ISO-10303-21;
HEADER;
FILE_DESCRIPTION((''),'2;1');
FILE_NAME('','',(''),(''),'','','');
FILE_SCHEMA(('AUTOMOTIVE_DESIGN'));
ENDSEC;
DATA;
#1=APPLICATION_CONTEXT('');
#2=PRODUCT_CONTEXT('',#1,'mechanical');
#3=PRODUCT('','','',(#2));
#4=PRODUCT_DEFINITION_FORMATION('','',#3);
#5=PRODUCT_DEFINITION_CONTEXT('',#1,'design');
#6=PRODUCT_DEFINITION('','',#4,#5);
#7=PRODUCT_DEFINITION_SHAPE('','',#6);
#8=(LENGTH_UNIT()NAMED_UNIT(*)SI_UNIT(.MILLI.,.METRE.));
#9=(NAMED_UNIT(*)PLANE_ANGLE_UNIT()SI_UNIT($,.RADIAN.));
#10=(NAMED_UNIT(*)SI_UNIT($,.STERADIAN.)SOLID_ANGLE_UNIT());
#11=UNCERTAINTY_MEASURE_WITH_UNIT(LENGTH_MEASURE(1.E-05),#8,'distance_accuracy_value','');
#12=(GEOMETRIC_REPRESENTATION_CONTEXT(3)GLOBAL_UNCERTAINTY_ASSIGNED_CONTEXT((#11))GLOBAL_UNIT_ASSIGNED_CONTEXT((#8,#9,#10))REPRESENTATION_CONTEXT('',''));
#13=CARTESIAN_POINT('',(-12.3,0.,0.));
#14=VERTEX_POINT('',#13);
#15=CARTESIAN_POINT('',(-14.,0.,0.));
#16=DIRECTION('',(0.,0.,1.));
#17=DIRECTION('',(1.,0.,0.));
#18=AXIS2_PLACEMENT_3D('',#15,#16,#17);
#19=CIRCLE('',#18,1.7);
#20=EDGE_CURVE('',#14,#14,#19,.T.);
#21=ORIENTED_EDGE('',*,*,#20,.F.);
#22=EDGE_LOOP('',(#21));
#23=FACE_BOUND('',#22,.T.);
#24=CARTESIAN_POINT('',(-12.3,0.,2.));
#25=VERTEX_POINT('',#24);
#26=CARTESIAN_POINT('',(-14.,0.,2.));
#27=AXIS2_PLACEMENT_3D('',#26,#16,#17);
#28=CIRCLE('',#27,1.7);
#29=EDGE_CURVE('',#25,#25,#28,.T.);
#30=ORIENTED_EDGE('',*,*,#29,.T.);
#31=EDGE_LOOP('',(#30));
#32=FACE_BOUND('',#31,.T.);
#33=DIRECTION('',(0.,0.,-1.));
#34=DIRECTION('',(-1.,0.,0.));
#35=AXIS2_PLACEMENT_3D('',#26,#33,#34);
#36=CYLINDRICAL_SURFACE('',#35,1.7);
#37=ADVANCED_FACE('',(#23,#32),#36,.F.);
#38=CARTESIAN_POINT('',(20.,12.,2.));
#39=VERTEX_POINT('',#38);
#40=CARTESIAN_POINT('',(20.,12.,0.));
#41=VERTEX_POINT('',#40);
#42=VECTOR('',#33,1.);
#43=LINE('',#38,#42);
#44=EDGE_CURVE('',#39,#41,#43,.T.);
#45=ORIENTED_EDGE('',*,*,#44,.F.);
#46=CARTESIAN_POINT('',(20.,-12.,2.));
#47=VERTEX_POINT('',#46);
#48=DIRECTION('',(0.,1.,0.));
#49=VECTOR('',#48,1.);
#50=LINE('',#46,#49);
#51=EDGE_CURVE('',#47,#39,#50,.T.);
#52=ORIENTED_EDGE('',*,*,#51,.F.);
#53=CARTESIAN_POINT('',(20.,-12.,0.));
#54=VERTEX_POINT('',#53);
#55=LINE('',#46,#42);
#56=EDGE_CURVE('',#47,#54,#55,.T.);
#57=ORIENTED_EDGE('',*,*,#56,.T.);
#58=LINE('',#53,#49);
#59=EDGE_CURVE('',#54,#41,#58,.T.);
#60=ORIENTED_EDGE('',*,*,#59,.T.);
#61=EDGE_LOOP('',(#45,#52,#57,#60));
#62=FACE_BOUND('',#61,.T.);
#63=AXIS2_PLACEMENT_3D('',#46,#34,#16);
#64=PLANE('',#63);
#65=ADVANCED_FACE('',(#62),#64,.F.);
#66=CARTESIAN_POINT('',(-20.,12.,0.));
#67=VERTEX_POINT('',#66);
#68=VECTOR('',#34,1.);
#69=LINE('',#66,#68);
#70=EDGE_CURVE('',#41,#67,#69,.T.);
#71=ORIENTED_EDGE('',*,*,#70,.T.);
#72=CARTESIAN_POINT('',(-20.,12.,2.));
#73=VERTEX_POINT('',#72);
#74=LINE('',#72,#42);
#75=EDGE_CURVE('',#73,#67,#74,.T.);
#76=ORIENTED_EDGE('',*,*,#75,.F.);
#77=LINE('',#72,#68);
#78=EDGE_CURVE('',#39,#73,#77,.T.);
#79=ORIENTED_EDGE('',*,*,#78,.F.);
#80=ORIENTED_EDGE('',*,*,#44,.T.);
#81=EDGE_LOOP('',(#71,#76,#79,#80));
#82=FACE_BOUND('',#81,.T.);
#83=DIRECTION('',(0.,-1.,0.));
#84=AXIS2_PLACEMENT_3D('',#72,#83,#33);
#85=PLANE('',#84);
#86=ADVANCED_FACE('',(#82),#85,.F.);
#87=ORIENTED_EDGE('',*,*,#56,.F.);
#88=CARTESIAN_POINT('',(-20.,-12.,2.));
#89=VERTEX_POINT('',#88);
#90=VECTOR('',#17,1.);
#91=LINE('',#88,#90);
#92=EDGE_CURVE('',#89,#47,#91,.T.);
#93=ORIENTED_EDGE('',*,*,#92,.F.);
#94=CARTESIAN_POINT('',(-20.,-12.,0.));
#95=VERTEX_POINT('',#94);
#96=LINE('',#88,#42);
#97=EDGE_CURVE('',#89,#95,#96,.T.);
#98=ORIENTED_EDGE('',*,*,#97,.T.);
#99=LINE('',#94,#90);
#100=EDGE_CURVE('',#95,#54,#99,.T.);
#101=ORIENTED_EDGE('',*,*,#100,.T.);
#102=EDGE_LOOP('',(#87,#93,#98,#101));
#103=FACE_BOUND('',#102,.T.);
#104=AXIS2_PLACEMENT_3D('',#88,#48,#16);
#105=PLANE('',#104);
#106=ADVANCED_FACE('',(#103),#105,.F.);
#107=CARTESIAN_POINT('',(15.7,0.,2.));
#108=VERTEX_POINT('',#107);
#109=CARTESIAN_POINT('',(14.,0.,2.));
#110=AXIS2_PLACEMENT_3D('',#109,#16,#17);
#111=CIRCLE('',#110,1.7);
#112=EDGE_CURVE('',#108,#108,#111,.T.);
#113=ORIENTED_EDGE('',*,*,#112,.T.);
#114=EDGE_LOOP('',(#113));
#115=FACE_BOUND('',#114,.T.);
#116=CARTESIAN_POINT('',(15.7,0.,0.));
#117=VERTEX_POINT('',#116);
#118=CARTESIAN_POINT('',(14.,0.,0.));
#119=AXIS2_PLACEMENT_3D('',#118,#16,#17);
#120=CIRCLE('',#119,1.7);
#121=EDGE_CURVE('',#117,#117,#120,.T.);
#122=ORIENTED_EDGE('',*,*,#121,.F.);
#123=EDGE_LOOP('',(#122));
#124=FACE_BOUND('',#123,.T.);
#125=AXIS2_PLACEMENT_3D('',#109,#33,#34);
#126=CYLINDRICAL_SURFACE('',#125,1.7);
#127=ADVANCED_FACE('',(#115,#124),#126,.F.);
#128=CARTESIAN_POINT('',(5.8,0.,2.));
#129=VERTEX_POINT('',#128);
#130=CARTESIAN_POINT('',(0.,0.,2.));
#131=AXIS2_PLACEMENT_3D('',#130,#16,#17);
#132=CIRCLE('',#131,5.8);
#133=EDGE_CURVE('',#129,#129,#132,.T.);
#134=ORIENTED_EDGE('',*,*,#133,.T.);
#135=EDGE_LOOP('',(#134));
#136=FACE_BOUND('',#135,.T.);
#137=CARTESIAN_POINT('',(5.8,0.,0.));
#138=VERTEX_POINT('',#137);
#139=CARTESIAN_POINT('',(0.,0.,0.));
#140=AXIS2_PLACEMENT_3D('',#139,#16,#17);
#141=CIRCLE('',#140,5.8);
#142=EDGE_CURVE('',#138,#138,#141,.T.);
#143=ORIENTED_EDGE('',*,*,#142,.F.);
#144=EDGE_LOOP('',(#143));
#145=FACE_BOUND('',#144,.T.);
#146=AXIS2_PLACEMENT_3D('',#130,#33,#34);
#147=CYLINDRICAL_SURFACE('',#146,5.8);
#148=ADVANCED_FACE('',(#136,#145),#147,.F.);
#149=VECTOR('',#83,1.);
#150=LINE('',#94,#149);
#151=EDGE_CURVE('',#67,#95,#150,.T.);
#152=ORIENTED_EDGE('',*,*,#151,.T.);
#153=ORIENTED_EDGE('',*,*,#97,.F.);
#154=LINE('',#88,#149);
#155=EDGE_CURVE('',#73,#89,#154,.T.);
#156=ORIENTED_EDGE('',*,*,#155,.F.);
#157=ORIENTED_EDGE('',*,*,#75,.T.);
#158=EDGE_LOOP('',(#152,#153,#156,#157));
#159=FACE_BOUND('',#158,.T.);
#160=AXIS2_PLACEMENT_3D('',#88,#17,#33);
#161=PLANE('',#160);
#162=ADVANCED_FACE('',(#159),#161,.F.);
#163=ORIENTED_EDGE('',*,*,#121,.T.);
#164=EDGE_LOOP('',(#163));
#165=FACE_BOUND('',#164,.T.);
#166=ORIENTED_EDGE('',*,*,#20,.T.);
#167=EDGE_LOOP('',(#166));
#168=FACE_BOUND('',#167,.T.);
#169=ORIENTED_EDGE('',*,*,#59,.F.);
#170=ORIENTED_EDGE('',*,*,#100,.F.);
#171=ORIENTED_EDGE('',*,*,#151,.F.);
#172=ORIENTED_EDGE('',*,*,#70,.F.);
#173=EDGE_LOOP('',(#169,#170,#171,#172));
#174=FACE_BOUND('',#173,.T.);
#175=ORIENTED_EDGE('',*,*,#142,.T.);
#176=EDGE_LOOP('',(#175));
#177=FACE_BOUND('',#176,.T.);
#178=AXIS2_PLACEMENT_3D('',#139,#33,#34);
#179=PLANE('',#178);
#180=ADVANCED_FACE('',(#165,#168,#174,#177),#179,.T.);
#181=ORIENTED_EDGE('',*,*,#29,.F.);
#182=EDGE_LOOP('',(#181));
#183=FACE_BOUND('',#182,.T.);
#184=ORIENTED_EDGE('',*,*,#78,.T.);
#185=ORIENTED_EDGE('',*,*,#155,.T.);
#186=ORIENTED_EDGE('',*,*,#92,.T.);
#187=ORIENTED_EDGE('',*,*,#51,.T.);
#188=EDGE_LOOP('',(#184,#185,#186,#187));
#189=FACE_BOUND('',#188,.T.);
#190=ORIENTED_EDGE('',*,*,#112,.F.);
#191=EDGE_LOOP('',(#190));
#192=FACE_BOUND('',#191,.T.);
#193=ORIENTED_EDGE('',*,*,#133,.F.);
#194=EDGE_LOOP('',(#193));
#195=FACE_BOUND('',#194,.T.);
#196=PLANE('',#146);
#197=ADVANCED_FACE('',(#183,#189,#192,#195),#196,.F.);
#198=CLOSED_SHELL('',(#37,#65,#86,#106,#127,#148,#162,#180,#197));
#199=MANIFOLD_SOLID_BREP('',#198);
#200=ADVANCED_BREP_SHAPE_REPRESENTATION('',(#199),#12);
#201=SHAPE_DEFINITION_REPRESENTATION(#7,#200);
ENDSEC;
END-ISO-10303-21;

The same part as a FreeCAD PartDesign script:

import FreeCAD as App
import Part
import Sketcher
from FreeCAD import Vector

doc = App.newDocument("Part")
body = doc.addObject("PartDesign::Body", "Body")

sketch1 = body.newObject("Sketcher::SketchObject", "Sketch")
sketch1.AttachmentSupport = (doc.getObject("XY_Plane"), [""])
sketch1.MapMode = "FlatFace"
sketch1.addGeometry([
    Part.LineSegment(Vector(-20, 12, 0), Vector(-20, -12, 0)),
    Part.LineSegment(Vector(-20, -12, 0), Vector(20, -12, 0)),
    Part.LineSegment(Vector(20, -12, 0), Vector(20, 12, 0)),
    Part.LineSegment(Vector(20, 12, 0), Vector(-20, 12, 0)),
    Part.Circle(Vector(-14, 0, 0), Vector(0, 0, 1), 1.7),
    Part.Circle(Vector(0, 0, 0), Vector(0, 0, 1), 5.8),
    Part.Circle(Vector(14, 0, 0), Vector(0, 0, 1), 1.7),
], False)
sketch1.addConstraint([
    Sketcher.Constraint("Coincident", 0, 2, 1, 1),
    Sketcher.Constraint("Coincident", 1, 2, 2, 1),
    Sketcher.Constraint("Coincident", 2, 2, 3, 1),
    Sketcher.Constraint("Coincident", 3, 2, 0, 1),
    Sketcher.Constraint("Vertical", 0),
    Sketcher.Constraint("Horizontal", 1),
    Sketcher.Constraint("Vertical", 2),
    Sketcher.Constraint("Horizontal", 3),
    Sketcher.Constraint("Coincident", 5, 3, -1, 1),
    Sketcher.Constraint("Equal", 4, 6),
    Sketcher.Constraint("Symmetric", 4, 3, 6, 3, -1, 1),
    Sketcher.Constraint("Symmetric", 0, 2, 2, 2, -1, 1),
    Sketcher.Constraint("PointOnObject", 4, 3, -1),
    Sketcher.Constraint("Diameter", 4, 3.4),
    Sketcher.Constraint("Diameter", 5, 11.6),
    Sketcher.Constraint("DistanceX", 1, 1, 1, 2, 40.0),
    Sketcher.Constraint("DistanceY", 0, 2, 0, 1, 24.0),
    Sketcher.Constraint("DistanceX", 4, 3, -1, 1, 14.0),
])
pad1 = body.newObject("PartDesign::Pad", "Pad")
pad1.Profile = sketch1
pad1.Length = 2

doc.recompute()
